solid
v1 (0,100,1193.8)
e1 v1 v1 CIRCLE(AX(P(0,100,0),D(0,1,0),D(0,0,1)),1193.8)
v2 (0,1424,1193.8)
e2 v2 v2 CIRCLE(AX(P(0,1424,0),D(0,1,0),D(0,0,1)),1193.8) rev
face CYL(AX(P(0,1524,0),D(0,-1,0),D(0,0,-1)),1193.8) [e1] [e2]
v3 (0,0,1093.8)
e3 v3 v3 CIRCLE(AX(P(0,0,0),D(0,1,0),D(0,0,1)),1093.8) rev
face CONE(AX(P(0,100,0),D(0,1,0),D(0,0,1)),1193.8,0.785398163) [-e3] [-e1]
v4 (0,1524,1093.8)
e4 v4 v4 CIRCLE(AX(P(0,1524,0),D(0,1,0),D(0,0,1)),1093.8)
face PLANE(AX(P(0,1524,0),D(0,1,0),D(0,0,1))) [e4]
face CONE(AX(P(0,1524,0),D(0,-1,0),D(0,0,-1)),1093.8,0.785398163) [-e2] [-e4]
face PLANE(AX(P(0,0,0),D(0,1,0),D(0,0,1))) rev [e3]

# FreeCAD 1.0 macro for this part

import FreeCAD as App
import Part
import Sketcher

V = App.Vector
Q = App.Units.Quantity


def edges_at(feature, points):
    """Names of the edges that pass closest to the given points."""
    edges = feature.Shape.Edges
    near = lambda p: min(range(len(edges)), key=lambda i: edges[i].distToShape(Part.Vertex(*p))[0])
    return sorted({f"Edge{near(p) + 1}" for p in points})

doc = App.newDocument("Part")
body = doc.addObject("PartDesign::Body", "Body")

sketch1 = body.newObject("Sketcher::SketchObject", "Sketch")
sketch1.AttachmentSupport = (doc.getObject("XZ_Plane"), [""])
sketch1.MapMode = "FlatFace"
sketch1.addGeometry(Part.Circle(V(0, 0, 0), V(0, 0, 1), 1193.8), False)
sketch1.addConstraint(Sketcher.Constraint("Coincident", 0, 3, -1, 1))
sketch1.addConstraint(Sketcher.Constraint("Diameter", 0, Q("94 in")))
pad1 = body.newObject("PartDesign::Pad", "Pad")
pad1.Profile = sketch1
pad1.Length = Q("60 in")
pad1.Reversed = True
doc.recompute()

chamfer = body.newObject("PartDesign::Chamfer", "Chamfer")
chamfer.Base = (pad1, edges_at(pad1, [(-1193.8, 1524, 0)]))
chamfer.Size = 100
doc.recompute()

chamfer2 = body.newObject("PartDesign::Chamfer", "Chamfer001")
chamfer2.Base = (chamfer, edges_at(chamfer, [(-1193.8, 0, 0)]))
chamfer2.Size = 100

doc.recompute()
